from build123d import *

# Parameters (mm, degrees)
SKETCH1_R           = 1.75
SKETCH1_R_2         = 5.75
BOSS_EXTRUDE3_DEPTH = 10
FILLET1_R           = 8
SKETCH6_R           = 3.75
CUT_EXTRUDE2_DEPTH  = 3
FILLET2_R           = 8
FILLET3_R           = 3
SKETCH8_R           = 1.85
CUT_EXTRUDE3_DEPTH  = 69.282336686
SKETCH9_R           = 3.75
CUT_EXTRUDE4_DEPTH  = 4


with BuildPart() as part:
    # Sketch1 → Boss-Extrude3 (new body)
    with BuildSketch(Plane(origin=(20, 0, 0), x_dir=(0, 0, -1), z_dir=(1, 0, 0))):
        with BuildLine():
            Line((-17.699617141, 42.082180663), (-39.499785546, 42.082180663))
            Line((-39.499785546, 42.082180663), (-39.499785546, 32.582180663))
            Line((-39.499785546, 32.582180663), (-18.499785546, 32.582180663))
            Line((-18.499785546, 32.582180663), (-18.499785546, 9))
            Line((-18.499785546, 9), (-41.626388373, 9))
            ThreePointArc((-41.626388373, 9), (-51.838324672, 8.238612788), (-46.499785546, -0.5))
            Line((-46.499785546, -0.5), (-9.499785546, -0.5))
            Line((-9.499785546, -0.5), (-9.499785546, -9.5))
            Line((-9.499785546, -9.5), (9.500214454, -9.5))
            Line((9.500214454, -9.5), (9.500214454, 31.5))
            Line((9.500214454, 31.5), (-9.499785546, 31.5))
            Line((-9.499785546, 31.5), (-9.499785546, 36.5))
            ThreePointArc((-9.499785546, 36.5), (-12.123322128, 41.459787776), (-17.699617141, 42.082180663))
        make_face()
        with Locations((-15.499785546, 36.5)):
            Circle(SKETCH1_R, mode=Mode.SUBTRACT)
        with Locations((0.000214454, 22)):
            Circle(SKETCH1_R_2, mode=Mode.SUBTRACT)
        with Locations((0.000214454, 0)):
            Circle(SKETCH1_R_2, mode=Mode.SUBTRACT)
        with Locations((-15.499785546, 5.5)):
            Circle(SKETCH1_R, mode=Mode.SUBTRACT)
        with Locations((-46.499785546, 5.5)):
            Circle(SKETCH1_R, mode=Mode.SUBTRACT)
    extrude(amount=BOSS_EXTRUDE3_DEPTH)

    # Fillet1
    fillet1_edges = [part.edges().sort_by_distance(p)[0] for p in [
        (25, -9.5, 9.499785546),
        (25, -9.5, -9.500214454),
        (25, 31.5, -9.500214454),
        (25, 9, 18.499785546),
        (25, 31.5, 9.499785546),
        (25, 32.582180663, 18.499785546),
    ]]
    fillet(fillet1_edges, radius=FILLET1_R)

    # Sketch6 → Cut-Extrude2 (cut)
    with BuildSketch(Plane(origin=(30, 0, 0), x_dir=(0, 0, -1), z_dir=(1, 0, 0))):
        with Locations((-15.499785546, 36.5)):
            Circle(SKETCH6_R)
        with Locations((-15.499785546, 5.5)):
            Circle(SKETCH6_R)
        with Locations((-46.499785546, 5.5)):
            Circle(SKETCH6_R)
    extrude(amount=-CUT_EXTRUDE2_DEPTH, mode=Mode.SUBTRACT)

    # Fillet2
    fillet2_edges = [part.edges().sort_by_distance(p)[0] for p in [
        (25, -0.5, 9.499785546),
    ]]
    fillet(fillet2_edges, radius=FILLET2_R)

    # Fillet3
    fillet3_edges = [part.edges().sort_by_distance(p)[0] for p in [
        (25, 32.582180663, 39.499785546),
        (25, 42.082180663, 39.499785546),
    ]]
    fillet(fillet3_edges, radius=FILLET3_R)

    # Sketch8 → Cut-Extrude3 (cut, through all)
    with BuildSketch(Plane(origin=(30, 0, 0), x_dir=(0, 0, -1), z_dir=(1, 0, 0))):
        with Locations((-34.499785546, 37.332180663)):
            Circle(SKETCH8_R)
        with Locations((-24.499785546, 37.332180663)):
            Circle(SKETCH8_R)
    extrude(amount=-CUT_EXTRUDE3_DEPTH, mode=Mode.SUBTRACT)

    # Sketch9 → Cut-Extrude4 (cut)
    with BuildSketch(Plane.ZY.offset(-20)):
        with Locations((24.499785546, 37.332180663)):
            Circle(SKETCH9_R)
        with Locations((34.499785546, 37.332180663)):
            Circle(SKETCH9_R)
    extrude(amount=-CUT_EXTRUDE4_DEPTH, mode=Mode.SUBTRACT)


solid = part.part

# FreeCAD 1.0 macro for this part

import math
import FreeCAD as App
import Part
import Sketcher
Q = App.Units.Quantity


def edges_at(feature, points):
    """Names of the edges that pass closest to the given points."""
    edges = feature.Shape.Edges
    near = lambda p: min(range(len(edges)), key=lambda i: edges[i].distToShape(Part.Vertex(*p))[0])
    return sorted({f"Edge{near(p) + 1}" for p in points})

doc = App.newDocument("Part")
body = doc.addObject("PartDesign::Body", "Body")

# Sketch on YZ plane
sketch1 = doc.addObject("Sketcher::SketchObject", "Sketch")
body.addObject(sketch1)
sketch1.AttachmentSupport = (doc.YZ_Plane, [""])
sketch1.MapMode = "FlatFace"
sketch1.AttachmentOffset = App.Placement(App.Vector(0, 0, 20), App.Rotation())
sketch1.addGeometry([
    Part.LineSegment(App.Vector(42.1, 17.7, 0), App.Vector(42.1, 39.5, 0)),  # 0
    Part.LineSegment(App.Vector(42.1, 39.5, 0), App.Vector(32.6, 39.5, 0)),  # 1
    Part.LineSegment(App.Vector(32.6, 39.5, 0), App.Vector(32.6, 18.5, 0)),  # 2
    Part.LineSegment(App.Vector(32.6, 18.5, 0), App.Vector(9, 18.5, 0)),  # 3
    Part.LineSegment(App.Vector(9, 18.5, 0), App.Vector(9, 41.6, 0)),  # 4
    Part.ArcOfCircle(Part.Circle(App.Vector(5.5, 46.5, 0), App.Vector(0, 0, 1), 6), math.radians(-54), math.radians(180)),  # 5
    Part.LineSegment(App.Vector(-0.5, 46.5, 0), App.Vector(-0.5, 9.5, 0)),  # 6
    Part.LineSegment(App.Vector(-0.5, 9.5, 0), App.Vector(-9.5, 9.5, 0)),  # 7
    Part.LineSegment(App.Vector(-9.5, 9.5, 0), App.Vector(-9.5, -9.5, 0)),  # 8
    Part.LineSegment(App.Vector(-9.5, -9.5, 0), App.Vector(31.5, -9.5, 0)),  # 9
    Part.LineSegment(App.Vector(31.5, -9.5, 0), App.Vector(31.5, 9.5, 0)),  # 10
    Part.LineSegment(App.Vector(31.5, 9.5, 0), App.Vector(36.5, 9.5, 0)),  # 11
    Part.ArcOfCircle(Part.Circle(App.Vector(36.5, 15.5, 0), App.Vector(0, 0, 1), 6), math.radians(-90), math.radians(22)),  # 12
    Part.Circle(App.Vector(5.5, 46.5, 0), App.Vector(0, 0, 1), 1.8),  # 13
    Part.Circle(App.Vector(0, 0, 0), App.Vector(0, 0, 1), 5.8),  # 14
    Part.Circle(App.Vector(5.5, 15.5, 0), App.Vector(0, 0, 1), 1.8),  # 15
    Part.Circle(App.Vector(22, 0, 0), App.Vector(0, 0, 1), 5.8),  # 16
    Part.Circle(App.Vector(36.5, 15.5, 0), App.Vector(0, 0, 1), 1.8),  # 17
], False)
sketch1.addConstraint([
    Sketcher.Constraint("Coincident", 0, 2, 1, 1),
    Sketcher.Constraint("Coincident", 1, 2, 2, 1),
    Sketcher.Constraint("Coincident", 2, 2, 3, 1),
    Sketcher.Constraint("Coincident", 3, 2, 4, 1),
    Sketcher.Constraint("Coincident", 4, 2, 5, 1),
    Sketcher.Constraint("Tangent", 5, 2, 6, 1),
    Sketcher.Constraint("Coincident", 6, 2, 7, 1),
    Sketcher.Constraint("Coincident", 7, 2, 8, 1),
    Sketcher.Constraint("Coincident", 8, 2, 9, 1),
    Sketcher.Constraint("Coincident", 9, 2, 10, 1),
    Sketcher.Constraint("Coincident", 10, 2, 11, 1),
    Sketcher.Constraint("Tangent", 11, 2, 12, 1),
    Sketcher.Constraint("Coincident", 12, 2, 0, 1),
    Sketcher.Constraint("Vertical", 0),
    Sketcher.Constraint("Horizontal", 1),
    Sketcher.Constraint("Vertical", 2),
    Sketcher.Constraint("Horizontal", 3),
    Sketcher.Constraint("Vertical", 4),
    Sketcher.Constraint("Vertical", 6),
    Sketcher.Constraint("Horizontal", 7),
    Sketcher.Constraint("Vertical", 8),
    Sketcher.Constraint("Horizontal", 9),
    Sketcher.Constraint("Vertical", 10),
    Sketcher.Constraint("Horizontal", 11),
    Sketcher.Constraint("Coincident", 13, 3, 5, 3),
    Sketcher.Constraint("Coincident", 17, 3, 12, 3),
    Sketcher.Constraint("Equal", 5, 12),
    Sketcher.Constraint("Equal", 13, 15),
    Sketcher.Constraint("Equal", 14, 16),
    Sketcher.Constraint("Equal", 15, 17),
    Sketcher.Constraint("PointOnObject", 14, 3, -2),
    Sketcher.Constraint("Horizontal", 12, 3, 15, 3),
    Sketcher.Constraint("Horizontal", 14, 3, 16, 3),
    Sketcher.Constraint("Horizontal", 7, 2, 10, 2),
    Sketcher.Constraint("Vertical", 13, 3, 15, 3),
    Sketcher.Constraint("Radius", 5, Q("6 mm")),
    Sketcher.Constraint("Diameter", 13, Q("3.5 mm")),
    Sketcher.Constraint("Diameter", 14, Q("11.5 mm")),
    Sketcher.Constraint("DistanceX", 7, 2, 7, 1, Q("9 mm")),
    Sketcher.Constraint("DistanceX", 9, 1, 9, 2, Q("41 mm")),
    Sketcher.Constraint("DistanceX", 11, 1, 11, 2, Q("5 mm")),
    Sketcher.Constraint("DistanceY", 2, 2, 2, 1, Q("21 mm")),
    Sketcher.Constraint("DistanceY", 6, 2, 6, 1, Q("37 mm")),
    Sketcher.Constraint("DistanceY", 8, 2, 8, 1, Q("19 mm")),
    Sketcher.Constraint("DistanceX", 1, 2, 1, 1, Q("9.5 mm")),
    Sketcher.Constraint("DistanceX", -1, 1, 16, 3, Q("22 mm")),
    Sketcher.Constraint("DistanceX", -1, 1, 3, 2, Q("9 mm")),
    Sketcher.Constraint("DistanceY", 17, 3, 0, 2, Q("24 mm")),
    Sketcher.Constraint("DistanceX", -1, 1, 5, 3, Q("5.5 mm")),
    Sketcher.Constraint("DistanceY", 14, 3, 12, 3, Q("15.5 mm")),
    Sketcher.Constraint("DistanceX", 3, 2, 3, 1, Q("23.582181 mm")),
    Sketcher.Constraint("DistanceY", -1, 1, 4, 2, Q("41.626388 mm")),
])
pad1 = doc.addObject("PartDesign::Pad", "Pad")
body.addObject(pad1)
pad1.Profile = sketch1
pad1.Length = 10
doc.recompute()

fillet = doc.addObject("PartDesign::Fillet", "Fillet")
body.addObject(fillet)
fillet.Base = (pad1, edges_at(pad1, [
    (25, -9.5, 9.5),
    (25, -9.5, -9.5),
    (25, 31.5, -9.5),
    (25, 9, 18.5),
    (25, 31.5, 9.5),
    (25, 32.582, 18.5),
]))
fillet.Radius = 8

# Sketch on YZ plane
sketch2 = doc.addObject("Sketcher::SketchObject", "Sketch001")
body.addObject(sketch2)
sketch2.AttachmentSupport = (doc.YZ_Plane, [""])
sketch2.MapMode = "FlatFace"
sketch2.AttachmentOffset = App.Placement(App.Vector(0, 0, 30), App.Rotation())
sketch2.addGeometry([
    Part.Circle(App.Vector(36.5, 15.5, 0), App.Vector(0, 0, 1), 3.8),
    Part.Circle(App.Vector(5.5, 15.5, 0), App.Vector(0, 0, 1), 3.8),
    Part.Circle(App.Vector(5.5, 46.5, 0), App.Vector(0, 0, 1), 3.8),
], False)
sketch2.addConstraint([
    Sketcher.Constraint("Equal", 0, 1),
    Sketcher.Constraint("Equal", 1, 2),
    Sketcher.Constraint("Horizontal", 0, 3, 1, 3),
    Sketcher.Constraint("Vertical", 1, 3, 2, 3),
    Sketcher.Constraint("Diameter", 0, Q("7.5 mm")),
    Sketcher.Constraint("DistanceX", 1, 3, 0, 3, Q("31 mm")),
    Sketcher.Constraint("DistanceY", 1, 3, 2, 3, Q("31 mm")),
    Sketcher.Constraint("DistanceX", -1, 1, 0, 3, Q("36.5 mm")),
    Sketcher.Constraint("DistanceY", -1, 1, 0, 3, Q("15.499786 mm")),
])
pocket1 = doc.addObject("PartDesign::Pocket", "Pocket")
body.addObject(pocket1)
pocket1.Profile = sketch2
pocket1.Length = 3
doc.recompute()

fillet2 = doc.addObject("PartDesign::Fillet", "Fillet001")
body.addObject(fillet2)
fillet2.Base = (pocket1, edges_at(pocket1, [(25, -0.5, 9.5)]))
fillet2.Radius = 8
doc.recompute()

fillet3 = doc.addObject("PartDesign::Fillet", "Fillet002")
body.addObject(fillet3)
fillet3.Base = (fillet2, edges_at(fillet2, [(25, 32.582, 39.5), (25, 42.082, 39.5)]))
fillet3.Radius = 3

# Sketch on YZ plane
sketch3 = doc.addObject("Sketcher::SketchObject", "Sketch002")
body.addObject(sketch3)
sketch3.AttachmentSupport = (doc.YZ_Plane, [""])
sketch3.MapMode = "FlatFace"
sketch3.AttachmentOffset = App.Placement(App.Vector(0, 0, 30), App.Rotation())
sketch3.addGeometry([
    Part.Circle(App.Vector(37.3, 34.5, 0), App.Vector(0, 0, 1), 1.9),
    Part.Circle(App.Vector(37.3, 24.5, 0), App.Vector(0, 0, 1), 1.9),
], False)
sketch3.addConstraint([
    Sketcher.Constraint("Equal", 0, 1),
    Sketcher.Constraint("Vertical", 0, 3, 1, 3),
    Sketcher.Constraint("Diameter", 0, Q("3.7 mm")),
    Sketcher.Constraint("DistanceY", 1, 3, 0, 3, Q("10 mm")),
    Sketcher.Constraint("DistanceX", -1, 1, 0, 3, Q("37.332181 mm")),
    Sketcher.Constraint("DistanceY", -1, 1, 0, 3, Q("34.499786 mm")),
])
pocket2 = doc.addObject("PartDesign::Pocket", "Pocket001")
body.addObject(pocket2)
pocket2.Profile = sketch3
pocket2.Type = "ThroughAll"

# Sketch on YZ plane
sketch4 = doc.addObject("Sketcher::SketchObject", "Sketch003")
body.addObject(sketch4)
sketch4.AttachmentSupport = (doc.YZ_Plane, [""])
sketch4.MapMode = "FlatFace"
sketch4.AttachmentOffset = App.Placement(App.Vector(0, 0, 20), App.Rotation())
sketch4.addGeometry([
    Part.Circle(App.Vector(37.3, 24.5, 0), App.Vector(0, 0, 1), 3.8),
    Part.Circle(App.Vector(37.3, 34.5, 0), App.Vector(0, 0, 1), 3.8),
], False)
sketch4.addConstraint([
    Sketcher.Constraint("Equal", 0, 1),
    Sketcher.Constraint("Vertical", 0, 3, 1, 3),
    Sketcher.Constraint("Diameter", 0, Q("7.5 mm")),
    Sketcher.Constraint("DistanceY", 0, 3, 1, 3, Q("10 mm")),
    Sketcher.Constraint("DistanceX", -1, 1, 0, 3, Q("37.332181 mm")),
    Sketcher.Constraint("DistanceY", -1, 1, 0, 3, Q("24.499786 mm")),
])
pocket3 = doc.addObject("PartDesign::Pocket", "Pocket002")
body.addObject(pocket3)
pocket3.Profile = sketch4
pocket3.Length = 4
pocket3.Reversed = True

doc.recompute()
